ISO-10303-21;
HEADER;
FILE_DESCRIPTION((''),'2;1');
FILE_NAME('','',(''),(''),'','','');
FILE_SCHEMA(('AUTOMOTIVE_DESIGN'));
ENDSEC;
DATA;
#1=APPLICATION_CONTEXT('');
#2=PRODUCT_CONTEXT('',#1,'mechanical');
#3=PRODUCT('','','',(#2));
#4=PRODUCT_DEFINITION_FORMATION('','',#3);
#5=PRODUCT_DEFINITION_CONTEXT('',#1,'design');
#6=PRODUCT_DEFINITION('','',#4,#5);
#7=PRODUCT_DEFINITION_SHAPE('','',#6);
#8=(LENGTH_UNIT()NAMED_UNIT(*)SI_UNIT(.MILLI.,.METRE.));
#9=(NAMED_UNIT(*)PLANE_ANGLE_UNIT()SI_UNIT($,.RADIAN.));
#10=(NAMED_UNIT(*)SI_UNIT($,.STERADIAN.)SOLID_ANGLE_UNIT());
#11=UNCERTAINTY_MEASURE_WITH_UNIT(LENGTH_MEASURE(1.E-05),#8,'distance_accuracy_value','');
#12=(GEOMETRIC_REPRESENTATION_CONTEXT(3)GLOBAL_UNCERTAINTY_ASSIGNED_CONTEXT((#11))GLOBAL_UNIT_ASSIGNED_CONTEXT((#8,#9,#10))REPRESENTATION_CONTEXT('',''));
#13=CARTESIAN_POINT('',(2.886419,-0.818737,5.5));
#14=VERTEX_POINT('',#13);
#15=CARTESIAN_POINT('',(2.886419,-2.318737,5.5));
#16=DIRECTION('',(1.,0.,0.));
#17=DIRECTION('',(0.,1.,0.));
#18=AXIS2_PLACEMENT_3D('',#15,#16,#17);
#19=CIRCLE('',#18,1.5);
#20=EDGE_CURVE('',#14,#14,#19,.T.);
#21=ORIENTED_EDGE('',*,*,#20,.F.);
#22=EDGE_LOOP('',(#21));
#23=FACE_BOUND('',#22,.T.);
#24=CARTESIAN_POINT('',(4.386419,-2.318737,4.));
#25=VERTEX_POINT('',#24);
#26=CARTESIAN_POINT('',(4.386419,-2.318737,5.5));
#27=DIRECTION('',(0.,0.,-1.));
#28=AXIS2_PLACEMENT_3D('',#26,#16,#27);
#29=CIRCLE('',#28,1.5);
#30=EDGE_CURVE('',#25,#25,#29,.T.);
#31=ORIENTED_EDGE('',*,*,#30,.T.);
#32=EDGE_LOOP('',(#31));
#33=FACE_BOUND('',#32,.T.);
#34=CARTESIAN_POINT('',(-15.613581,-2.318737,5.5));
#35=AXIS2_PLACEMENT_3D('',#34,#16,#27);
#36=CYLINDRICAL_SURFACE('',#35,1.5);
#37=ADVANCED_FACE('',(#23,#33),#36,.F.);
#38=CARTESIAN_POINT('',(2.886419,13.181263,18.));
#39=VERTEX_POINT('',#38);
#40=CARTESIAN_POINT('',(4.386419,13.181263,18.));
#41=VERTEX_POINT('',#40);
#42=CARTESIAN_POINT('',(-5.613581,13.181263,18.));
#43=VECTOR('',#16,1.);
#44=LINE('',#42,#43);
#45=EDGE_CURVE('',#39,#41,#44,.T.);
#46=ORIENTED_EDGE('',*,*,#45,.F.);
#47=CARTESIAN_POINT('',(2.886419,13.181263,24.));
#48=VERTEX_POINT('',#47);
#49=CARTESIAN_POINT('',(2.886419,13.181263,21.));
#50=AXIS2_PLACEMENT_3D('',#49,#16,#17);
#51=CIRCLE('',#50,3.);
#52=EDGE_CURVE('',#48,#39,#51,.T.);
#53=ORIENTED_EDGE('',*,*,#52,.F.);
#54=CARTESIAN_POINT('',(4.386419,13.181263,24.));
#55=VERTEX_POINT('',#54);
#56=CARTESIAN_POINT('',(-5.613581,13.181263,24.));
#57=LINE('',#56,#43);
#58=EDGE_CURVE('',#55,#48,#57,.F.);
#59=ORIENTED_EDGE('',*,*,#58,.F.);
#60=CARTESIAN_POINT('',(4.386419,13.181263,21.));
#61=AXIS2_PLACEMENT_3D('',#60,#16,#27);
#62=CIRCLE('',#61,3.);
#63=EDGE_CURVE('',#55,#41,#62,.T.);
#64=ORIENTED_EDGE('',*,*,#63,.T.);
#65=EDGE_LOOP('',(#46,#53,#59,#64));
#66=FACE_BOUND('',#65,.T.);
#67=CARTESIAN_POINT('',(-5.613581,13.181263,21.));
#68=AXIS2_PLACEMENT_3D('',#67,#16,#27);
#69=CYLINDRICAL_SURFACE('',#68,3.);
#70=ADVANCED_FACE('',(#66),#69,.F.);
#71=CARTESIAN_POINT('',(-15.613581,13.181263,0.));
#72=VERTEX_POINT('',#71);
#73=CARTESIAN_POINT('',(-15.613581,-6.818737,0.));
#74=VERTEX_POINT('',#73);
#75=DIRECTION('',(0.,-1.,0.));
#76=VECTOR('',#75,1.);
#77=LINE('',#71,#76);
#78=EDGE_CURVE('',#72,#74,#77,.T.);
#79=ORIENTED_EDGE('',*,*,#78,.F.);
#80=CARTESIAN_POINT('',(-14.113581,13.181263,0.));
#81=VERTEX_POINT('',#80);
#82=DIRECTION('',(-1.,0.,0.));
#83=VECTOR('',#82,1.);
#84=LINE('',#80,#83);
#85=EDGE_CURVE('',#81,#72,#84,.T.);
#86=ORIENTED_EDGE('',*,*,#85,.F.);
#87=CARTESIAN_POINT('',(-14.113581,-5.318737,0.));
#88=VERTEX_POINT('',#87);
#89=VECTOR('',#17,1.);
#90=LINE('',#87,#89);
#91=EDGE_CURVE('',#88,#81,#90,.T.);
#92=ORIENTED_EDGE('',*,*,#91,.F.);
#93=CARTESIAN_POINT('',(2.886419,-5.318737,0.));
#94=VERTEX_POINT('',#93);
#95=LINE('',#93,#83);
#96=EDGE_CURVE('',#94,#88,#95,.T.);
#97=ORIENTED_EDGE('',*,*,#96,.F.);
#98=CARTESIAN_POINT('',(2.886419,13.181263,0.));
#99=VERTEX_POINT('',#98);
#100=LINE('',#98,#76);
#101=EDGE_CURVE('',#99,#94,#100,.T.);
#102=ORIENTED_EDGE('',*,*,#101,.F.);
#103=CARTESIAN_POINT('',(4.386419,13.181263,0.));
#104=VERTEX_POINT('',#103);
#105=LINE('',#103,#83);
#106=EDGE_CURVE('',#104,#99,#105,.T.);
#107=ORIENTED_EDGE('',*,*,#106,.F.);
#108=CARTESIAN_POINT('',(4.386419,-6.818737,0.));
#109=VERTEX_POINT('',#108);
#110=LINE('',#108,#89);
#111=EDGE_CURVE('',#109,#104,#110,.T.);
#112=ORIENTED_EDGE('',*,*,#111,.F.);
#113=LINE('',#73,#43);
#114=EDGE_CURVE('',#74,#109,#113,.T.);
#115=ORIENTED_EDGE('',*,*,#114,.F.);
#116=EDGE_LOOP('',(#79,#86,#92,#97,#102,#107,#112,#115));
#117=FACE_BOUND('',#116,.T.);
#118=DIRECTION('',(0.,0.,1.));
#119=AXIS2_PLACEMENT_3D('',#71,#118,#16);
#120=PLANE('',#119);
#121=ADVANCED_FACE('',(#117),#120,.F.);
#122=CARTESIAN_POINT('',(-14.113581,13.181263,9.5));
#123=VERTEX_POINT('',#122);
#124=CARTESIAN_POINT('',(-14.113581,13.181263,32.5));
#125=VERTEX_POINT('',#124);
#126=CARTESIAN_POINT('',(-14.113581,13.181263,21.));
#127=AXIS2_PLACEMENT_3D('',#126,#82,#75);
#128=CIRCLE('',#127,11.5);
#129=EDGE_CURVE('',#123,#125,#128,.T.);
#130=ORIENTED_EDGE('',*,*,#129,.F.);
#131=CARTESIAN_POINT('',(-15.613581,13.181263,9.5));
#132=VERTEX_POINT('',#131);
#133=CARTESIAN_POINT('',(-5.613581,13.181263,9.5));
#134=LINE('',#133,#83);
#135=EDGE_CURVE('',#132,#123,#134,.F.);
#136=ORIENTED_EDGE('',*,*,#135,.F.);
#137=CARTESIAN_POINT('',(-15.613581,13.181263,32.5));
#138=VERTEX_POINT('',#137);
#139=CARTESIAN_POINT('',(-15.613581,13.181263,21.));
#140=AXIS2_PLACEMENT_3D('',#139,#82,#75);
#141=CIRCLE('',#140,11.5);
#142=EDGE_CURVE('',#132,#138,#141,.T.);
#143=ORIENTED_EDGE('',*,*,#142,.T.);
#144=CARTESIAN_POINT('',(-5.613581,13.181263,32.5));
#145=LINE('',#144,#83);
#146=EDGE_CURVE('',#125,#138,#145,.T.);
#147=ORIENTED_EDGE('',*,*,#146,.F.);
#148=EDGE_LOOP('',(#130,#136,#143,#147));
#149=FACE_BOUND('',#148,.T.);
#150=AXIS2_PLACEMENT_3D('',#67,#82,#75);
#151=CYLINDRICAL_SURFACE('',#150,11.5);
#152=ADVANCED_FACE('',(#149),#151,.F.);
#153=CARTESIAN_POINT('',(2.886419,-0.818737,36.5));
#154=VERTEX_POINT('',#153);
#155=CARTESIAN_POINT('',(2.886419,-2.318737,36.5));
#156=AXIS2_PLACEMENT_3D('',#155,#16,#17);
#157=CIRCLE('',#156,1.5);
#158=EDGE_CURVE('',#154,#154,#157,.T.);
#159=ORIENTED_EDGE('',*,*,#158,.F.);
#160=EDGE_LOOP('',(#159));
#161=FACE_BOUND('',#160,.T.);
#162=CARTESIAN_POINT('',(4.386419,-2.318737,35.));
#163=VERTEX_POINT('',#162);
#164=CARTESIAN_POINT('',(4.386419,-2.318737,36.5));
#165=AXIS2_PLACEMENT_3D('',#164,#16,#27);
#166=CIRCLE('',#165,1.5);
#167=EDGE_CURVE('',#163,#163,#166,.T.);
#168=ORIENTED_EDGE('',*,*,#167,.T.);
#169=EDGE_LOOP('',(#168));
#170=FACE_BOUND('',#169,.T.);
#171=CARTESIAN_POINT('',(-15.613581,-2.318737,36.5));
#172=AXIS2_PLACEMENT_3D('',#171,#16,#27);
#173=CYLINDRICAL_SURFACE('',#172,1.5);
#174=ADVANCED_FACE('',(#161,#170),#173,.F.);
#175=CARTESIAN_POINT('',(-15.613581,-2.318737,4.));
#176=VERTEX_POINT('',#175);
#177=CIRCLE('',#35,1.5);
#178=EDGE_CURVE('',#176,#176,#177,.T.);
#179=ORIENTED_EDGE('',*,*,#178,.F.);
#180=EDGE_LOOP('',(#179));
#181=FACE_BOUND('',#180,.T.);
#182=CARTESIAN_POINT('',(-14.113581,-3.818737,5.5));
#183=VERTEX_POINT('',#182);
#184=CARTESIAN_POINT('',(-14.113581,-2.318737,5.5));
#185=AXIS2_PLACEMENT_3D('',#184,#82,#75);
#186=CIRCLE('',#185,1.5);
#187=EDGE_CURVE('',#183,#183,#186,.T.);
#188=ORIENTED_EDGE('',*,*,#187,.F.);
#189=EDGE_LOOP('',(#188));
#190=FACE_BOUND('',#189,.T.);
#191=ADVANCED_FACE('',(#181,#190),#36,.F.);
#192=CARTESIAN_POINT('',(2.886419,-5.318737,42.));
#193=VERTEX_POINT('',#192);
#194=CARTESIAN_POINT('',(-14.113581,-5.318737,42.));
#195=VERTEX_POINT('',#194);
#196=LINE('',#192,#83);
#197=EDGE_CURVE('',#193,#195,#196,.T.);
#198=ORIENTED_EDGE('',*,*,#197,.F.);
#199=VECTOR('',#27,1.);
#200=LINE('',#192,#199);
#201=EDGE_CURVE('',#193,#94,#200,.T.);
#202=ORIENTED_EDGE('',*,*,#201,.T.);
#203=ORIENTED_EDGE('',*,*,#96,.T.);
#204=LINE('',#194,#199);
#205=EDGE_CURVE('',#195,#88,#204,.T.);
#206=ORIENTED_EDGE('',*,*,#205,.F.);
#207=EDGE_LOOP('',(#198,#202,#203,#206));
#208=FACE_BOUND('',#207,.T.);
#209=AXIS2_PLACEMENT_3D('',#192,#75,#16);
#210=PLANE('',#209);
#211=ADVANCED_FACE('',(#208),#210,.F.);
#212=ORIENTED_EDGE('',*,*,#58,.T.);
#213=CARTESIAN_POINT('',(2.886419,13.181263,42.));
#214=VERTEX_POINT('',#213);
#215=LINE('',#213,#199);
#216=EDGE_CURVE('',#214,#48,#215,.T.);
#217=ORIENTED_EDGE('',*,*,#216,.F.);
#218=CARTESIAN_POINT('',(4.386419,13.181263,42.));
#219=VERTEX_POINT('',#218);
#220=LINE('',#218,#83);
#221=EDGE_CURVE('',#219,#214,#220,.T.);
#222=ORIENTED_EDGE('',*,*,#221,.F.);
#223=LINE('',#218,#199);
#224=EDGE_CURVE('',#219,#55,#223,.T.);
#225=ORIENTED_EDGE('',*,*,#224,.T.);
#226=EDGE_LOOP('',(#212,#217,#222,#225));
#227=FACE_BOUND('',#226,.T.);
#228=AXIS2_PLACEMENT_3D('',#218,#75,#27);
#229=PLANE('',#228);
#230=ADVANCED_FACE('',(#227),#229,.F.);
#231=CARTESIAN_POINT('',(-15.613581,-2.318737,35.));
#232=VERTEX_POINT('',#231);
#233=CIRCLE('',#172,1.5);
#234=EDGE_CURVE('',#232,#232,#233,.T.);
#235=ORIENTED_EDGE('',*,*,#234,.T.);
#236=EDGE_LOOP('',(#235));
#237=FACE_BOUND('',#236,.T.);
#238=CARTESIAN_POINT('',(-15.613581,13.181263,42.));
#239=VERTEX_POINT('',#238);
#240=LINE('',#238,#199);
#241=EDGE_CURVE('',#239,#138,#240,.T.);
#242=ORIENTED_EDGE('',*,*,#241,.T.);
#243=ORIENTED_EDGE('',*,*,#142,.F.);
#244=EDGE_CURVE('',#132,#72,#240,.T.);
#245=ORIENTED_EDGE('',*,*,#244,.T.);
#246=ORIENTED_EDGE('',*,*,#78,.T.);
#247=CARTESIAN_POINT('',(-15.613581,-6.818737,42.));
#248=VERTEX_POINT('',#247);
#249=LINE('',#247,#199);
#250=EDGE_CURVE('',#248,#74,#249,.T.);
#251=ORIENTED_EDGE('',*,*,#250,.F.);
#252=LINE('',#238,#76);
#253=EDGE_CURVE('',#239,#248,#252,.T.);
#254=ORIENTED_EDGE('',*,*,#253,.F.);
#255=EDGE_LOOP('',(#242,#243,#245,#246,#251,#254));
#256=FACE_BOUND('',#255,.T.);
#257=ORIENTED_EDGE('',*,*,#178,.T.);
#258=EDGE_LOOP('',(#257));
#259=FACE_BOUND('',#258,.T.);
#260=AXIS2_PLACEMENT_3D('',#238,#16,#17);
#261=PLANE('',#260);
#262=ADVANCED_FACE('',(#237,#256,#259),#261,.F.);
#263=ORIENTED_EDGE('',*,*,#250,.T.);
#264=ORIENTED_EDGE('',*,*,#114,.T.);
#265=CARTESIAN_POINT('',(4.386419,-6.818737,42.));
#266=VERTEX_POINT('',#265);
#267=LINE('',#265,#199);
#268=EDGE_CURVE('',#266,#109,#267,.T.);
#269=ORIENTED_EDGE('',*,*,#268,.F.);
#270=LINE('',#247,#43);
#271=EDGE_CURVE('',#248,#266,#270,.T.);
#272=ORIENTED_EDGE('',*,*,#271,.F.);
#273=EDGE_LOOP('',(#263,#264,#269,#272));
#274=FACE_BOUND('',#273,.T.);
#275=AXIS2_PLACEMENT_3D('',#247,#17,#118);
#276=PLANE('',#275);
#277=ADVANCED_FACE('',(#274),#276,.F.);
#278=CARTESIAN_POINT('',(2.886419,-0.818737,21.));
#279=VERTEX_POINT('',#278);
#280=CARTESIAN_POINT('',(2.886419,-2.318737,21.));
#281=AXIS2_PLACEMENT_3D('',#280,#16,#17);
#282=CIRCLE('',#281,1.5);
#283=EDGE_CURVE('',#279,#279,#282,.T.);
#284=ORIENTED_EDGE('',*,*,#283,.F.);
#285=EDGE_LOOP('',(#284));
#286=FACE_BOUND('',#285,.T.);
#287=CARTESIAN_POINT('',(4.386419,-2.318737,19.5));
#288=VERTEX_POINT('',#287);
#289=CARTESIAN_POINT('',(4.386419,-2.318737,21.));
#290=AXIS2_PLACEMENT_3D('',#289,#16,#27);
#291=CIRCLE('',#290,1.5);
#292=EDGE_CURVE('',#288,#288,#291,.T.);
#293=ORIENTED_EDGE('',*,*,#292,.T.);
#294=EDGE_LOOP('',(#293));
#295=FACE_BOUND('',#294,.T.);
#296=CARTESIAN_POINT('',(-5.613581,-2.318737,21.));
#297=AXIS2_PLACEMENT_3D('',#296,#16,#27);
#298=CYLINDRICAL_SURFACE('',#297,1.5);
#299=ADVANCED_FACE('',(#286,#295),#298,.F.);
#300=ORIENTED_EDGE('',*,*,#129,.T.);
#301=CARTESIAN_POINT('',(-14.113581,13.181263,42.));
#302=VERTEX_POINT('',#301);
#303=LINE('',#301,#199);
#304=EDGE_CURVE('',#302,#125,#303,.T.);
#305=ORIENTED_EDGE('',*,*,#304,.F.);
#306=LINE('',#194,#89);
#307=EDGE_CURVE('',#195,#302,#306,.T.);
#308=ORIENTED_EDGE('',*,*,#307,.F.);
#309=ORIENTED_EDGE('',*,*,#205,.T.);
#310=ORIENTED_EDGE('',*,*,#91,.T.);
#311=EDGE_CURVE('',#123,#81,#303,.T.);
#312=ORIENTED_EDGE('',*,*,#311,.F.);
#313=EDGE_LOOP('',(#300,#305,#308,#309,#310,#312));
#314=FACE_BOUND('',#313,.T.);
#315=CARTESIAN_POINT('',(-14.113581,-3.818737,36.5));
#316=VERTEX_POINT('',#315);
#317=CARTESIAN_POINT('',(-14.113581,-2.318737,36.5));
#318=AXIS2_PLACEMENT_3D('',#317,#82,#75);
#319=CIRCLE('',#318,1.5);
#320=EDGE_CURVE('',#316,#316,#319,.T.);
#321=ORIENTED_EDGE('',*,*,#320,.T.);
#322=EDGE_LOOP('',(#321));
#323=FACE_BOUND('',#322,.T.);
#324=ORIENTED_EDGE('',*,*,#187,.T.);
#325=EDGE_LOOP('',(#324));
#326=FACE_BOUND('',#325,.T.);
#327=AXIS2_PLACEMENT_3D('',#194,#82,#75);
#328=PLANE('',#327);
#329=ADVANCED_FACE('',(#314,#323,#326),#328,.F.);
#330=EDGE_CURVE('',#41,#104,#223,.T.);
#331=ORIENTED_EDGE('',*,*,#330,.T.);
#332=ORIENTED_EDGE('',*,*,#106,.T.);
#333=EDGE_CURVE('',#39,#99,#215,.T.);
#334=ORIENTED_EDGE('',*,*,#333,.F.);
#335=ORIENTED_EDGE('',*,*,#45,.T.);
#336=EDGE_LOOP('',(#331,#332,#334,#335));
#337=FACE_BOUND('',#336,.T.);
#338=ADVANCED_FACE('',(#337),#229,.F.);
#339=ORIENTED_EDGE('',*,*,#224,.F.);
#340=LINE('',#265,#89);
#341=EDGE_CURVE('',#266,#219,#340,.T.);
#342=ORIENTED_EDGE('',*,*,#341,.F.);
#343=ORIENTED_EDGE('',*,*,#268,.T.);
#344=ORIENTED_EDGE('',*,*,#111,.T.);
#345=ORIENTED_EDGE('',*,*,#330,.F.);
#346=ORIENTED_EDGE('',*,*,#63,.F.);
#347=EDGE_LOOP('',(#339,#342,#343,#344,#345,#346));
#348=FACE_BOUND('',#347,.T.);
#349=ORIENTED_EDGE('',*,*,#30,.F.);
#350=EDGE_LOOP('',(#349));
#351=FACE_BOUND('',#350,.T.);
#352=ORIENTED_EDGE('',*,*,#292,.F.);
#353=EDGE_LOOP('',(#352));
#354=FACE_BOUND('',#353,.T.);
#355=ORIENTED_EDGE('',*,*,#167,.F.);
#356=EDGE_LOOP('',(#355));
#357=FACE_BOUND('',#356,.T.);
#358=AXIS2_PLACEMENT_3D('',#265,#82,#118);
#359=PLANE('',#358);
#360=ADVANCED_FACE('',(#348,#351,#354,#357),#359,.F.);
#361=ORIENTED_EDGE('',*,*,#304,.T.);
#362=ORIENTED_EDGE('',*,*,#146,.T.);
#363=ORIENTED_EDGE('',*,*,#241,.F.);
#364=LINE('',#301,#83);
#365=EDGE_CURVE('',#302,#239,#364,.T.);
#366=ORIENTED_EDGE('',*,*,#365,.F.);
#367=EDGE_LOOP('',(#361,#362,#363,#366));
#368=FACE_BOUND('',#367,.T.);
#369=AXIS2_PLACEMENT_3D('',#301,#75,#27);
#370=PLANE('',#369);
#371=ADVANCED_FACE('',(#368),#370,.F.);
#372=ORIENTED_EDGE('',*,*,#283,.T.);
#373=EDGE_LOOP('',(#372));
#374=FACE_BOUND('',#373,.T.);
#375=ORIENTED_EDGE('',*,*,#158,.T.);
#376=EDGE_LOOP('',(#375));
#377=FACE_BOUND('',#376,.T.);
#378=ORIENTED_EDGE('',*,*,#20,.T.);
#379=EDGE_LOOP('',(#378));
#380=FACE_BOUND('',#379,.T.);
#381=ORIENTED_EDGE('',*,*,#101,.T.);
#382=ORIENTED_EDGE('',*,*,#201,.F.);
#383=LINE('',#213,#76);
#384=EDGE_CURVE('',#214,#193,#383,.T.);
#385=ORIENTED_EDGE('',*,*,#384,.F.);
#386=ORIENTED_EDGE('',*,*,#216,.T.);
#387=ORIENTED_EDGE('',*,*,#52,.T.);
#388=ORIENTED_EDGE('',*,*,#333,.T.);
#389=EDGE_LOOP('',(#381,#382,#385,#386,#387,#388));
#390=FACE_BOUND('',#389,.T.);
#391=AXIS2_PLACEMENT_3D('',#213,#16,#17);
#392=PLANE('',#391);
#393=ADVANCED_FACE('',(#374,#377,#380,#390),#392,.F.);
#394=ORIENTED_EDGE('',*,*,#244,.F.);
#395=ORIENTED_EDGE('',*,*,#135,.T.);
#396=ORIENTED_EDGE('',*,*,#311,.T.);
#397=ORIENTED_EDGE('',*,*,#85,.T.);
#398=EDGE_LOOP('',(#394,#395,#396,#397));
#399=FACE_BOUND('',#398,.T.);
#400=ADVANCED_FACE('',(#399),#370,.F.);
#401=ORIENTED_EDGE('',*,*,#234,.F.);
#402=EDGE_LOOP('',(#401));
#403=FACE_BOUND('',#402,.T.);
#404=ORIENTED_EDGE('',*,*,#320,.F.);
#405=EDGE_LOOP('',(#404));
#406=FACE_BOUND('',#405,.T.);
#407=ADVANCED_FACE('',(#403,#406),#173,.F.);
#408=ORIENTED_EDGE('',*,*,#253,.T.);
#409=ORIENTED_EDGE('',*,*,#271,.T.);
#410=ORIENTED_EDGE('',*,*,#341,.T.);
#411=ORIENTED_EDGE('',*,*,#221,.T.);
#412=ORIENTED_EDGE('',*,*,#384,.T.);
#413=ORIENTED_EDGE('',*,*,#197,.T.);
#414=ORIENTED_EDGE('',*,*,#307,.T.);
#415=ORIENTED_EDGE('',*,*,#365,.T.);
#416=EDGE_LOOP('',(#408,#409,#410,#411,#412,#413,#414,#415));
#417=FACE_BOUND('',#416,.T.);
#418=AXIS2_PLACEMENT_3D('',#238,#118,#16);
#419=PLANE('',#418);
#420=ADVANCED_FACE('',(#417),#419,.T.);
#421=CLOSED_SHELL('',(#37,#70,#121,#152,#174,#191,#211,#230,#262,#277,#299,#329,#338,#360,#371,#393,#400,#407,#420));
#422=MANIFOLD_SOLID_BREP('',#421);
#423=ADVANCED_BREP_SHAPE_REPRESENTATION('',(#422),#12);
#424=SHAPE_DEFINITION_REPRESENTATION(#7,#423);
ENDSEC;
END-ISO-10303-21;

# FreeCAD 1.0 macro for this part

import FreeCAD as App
import Part
import Sketcher

V = App.Vector

doc = App.newDocument("Part")
body = doc.addObject("PartDesign::Body", "Body")

# Sketch on XY plane
sketch1 = body.newObject("Sketcher::SketchObject", "Sketch")
sketch1.AttachmentSupport = (doc.getObject("XY_Plane"), [""])
sketch1.MapMode = "FlatFace"
sketch1.addGeometry(Part.LineSegment(V(-15.6, 13.2, 0), V(-15.6, -6.8, 0)), False)
sketch1.addGeometry(Part.LineSegment(V(-15.6, -6.8, 0), V(4.4, -6.8, 0)), False)
sketch1.addGeometry(Part.LineSegment(V(4.4, -6.8, 0), V(4.4, 13.2, 0)), False)
sketch1.addGeometry(Part.LineSegment(V(4.4, 13.2, 0), V(2.9, 13.2, 0)), False)
sketch1.addGeometry(Part.LineSegment(V(2.9, 13.2, 0), V(2.9, -5.3, 0)), False)
sketch1.addGeometry(Part.LineSegment(V(2.9, -5.3, 0), V(-14.1, -5.3, 0)), False)
sketch1.addGeometry(Part.LineSegment(V(-14.1, -5.3, 0), V(-14.1, 13.2, 0)), False)
sketch1.addGeometry(Part.LineSegment(V(-14.1, 13.2, 0), V(-15.6, 13.2, 0)), False)
sketch1.addConstraint(Sketcher.Constraint("Coincident", 0, 2, 1, 1))
sketch1.addConstraint(Sketcher.Constraint("Coincident", 1, 2, 2, 1))
sketch1.addConstraint(Sketcher.Constraint("Coincident", 2, 2, 3, 1))
sketch1.addConstraint(Sketcher.Constraint("Coincident", 3, 2, 4, 1))
sketch1.addConstraint(Sketcher.Constraint("Coincident", 4, 2, 5, 1))
sketch1.addConstraint(Sketcher.Constraint("Coincident", 5, 2, 6, 1))
sketch1.addConstraint(Sketcher.Constraint("Coincident", 6, 2, 7, 1))
sketch1.addConstraint(Sketcher.Constraint("Coincident", 7, 2, 0, 1))
sketch1.addConstraint(Sketcher.Constraint("Vertical", 0))
sketch1.addConstraint(Sketcher.Constraint("Horizontal", 1))
sketch1.addConstraint(Sketcher.Constraint("Vertical", 2))
sketch1.addConstraint(Sketcher.Constraint("Horizontal", 3))
sketch1.addConstraint(Sketcher.Constraint("Vertical", 4))
sketch1.addConstraint(Sketcher.Constraint("Horizontal", 5))
sketch1.addConstraint(Sketcher.Constraint("Vertical", 6))
sketch1.addConstraint(Sketcher.Constraint("Horizontal", 7))
sketch1.addConstraint(Sketcher.Constraint("Horizontal", 3, 2, 6, 2))
sketch1.addConstraint(Sketcher.Constraint("Equal", 3, 7))
sketch1.addConstraint(Sketcher.Constraint("Equal", 1, 0))
sketch1.addConstraint(Sketcher.Constraint("DistanceX", 1, 1, 1, 2, 20.0))
sketch1.addConstraint(Sketcher.Constraint("DistanceX", 5, 2, 5, 1, 17.0))
sketch1.addConstraint(Sketcher.Constraint("DistanceY", 4, 2, 4, 1, 18.5))
sketch1.addConstraint(Sketcher.Constraint("DistanceX", 0, 2, -1, 1, 15.613581))
sketch1.addConstraint(Sketcher.Constraint("DistanceY", 0, 2, -1, 1, 6.818737))
pad1 = body.newObject("PartDesign::Pad", "Pad")
pad1.Profile = sketch1
pad1.Length = 42

# Sketch on YZ plane
sketch2 = body.newObject("Sketcher::SketchObject", "Sketch001")
sketch2.AttachmentSupport = (doc.getObject("YZ_Plane"), [""])
sketch2.MapMode = "FlatFace"
sketch2.AttachmentOffset = App.Placement(V(0, 0, 4.386419), App.Rotation())
sketch2.addGeometry(Part.Circle(V(-2.3, 36.5, 0), V(0, 0, 1), 1.5), False)
sketch2.addGeometry(Part.Circle(V(-2.3, 5.5, 0), V(0, 0, 1), 1.5), False)
sketch2.addConstraint(Sketcher.Constraint("Equal", 0, 1))
sketch2.addConstraint(Sketcher.Constraint("Vertical", 0, 3, 1, 3))
sketch2.addConstraint(Sketcher.Constraint("Diameter", 0, 3.0))
sketch2.addConstraint(Sketcher.Constraint("DistanceY", 1, 3, 0, 3, 31.0))
sketch2.addConstraint(Sketcher.Constraint("DistanceY", -1, 1, 0, 3, 36.5))
sketch2.addConstraint(Sketcher.Constraint("DistanceX", 0, 3, -1, 1, 2.318737))
pocket1 = body.newObject("PartDesign::Pocket", "Pocket")
pocket1.Profile = sketch2
pocket1.Type = "ThroughAll"

# Sketch on YZ plane
sketch3 = body.newObject("Sketcher::SketchObject", "Sketch002")
sketch3.AttachmentSupport = (doc.getObject("YZ_Plane"), [""])
sketch3.MapMode = "FlatFace"
sketch3.AttachmentOffset = App.Placement(V(0, 0, 4.386419), App.Rotation())
sketch3.addGeometry(Part.Circle(V(-2.3, 21, 0), V(0, 0, 1), 1.5), False)
sketch3.addConstraint(Sketcher.Constraint("Diameter", 0, 3.0))
sketch3.addConstraint(Sketcher.Constraint("DistanceY", -1, 1, 0, 3, 21.0))
sketch3.addConstraint(Sketcher.Constraint("DistanceX", 0, 3, -1, 1, 2.318737))
pocket2 = body.newObject("PartDesign::Pocket", "Pocket001")
pocket2.Profile = sketch3
pocket2.Length = 10

# Sketch on YZ plane
sketch4 = body.newObject("Sketcher::SketchObject", "Sketch003")
sketch4.AttachmentSupport = (doc.getObject("YZ_Plane"), [""])
sketch4.MapMode = "FlatFace"
sketch4.AttachmentOffset = App.Placement(V(0, 0, -15.613581), App.Rotation())
sketch4.addGeometry(Part.Circle(V(13, 21, 0), V(0, 0, 1), 12), False)
sketch4.addConstraint(Sketcher.Constraint("Diameter", 0, 23.0))
sketch4.addConstraint(Sketcher.Constraint("DistanceY", -1, 1, 0, 3, 21.0))
sketch4.addConstraint(Sketcher.Constraint("DistanceX", -1, 1, 0, 3, 13.181263))
pocket3 = body.newObject("PartDesign::Pocket", "Pocket002")
pocket3.Profile = sketch4
pocket3.Length = 10
pocket3.Reversed = True

# Sketch on YZ plane
sketch5 = body.newObject("Sketcher::SketchObject", "Sketch004")
sketch5.AttachmentSupport = (doc.getObject("YZ_Plane"), [""])
sketch5.MapMode = "FlatFace"
sketch5.AttachmentOffset = App.Placement(V(0, 0, 4.386419), App.Rotation())
sketch5.addGeometry(Part.Circle(V(13.2, 21, 0), V(0, 0, 1), 3), False)
sketch5.addConstraint(Sketcher.Constraint("Diameter", 0, 6.0))
sketch5.addConstraint(Sketcher.Constraint("DistanceY", -1, 1, 0, 3, 21.0))
sketch5.addConstraint(Sketcher.Constraint("DistanceX", -1, 1, 0, 3, 13.181263))
pocket4 = body.newObject("PartDesign::Pocket", "Pocket003")
pocket4.Profile = sketch5
pocket4.Length = 10

doc.recompute()
